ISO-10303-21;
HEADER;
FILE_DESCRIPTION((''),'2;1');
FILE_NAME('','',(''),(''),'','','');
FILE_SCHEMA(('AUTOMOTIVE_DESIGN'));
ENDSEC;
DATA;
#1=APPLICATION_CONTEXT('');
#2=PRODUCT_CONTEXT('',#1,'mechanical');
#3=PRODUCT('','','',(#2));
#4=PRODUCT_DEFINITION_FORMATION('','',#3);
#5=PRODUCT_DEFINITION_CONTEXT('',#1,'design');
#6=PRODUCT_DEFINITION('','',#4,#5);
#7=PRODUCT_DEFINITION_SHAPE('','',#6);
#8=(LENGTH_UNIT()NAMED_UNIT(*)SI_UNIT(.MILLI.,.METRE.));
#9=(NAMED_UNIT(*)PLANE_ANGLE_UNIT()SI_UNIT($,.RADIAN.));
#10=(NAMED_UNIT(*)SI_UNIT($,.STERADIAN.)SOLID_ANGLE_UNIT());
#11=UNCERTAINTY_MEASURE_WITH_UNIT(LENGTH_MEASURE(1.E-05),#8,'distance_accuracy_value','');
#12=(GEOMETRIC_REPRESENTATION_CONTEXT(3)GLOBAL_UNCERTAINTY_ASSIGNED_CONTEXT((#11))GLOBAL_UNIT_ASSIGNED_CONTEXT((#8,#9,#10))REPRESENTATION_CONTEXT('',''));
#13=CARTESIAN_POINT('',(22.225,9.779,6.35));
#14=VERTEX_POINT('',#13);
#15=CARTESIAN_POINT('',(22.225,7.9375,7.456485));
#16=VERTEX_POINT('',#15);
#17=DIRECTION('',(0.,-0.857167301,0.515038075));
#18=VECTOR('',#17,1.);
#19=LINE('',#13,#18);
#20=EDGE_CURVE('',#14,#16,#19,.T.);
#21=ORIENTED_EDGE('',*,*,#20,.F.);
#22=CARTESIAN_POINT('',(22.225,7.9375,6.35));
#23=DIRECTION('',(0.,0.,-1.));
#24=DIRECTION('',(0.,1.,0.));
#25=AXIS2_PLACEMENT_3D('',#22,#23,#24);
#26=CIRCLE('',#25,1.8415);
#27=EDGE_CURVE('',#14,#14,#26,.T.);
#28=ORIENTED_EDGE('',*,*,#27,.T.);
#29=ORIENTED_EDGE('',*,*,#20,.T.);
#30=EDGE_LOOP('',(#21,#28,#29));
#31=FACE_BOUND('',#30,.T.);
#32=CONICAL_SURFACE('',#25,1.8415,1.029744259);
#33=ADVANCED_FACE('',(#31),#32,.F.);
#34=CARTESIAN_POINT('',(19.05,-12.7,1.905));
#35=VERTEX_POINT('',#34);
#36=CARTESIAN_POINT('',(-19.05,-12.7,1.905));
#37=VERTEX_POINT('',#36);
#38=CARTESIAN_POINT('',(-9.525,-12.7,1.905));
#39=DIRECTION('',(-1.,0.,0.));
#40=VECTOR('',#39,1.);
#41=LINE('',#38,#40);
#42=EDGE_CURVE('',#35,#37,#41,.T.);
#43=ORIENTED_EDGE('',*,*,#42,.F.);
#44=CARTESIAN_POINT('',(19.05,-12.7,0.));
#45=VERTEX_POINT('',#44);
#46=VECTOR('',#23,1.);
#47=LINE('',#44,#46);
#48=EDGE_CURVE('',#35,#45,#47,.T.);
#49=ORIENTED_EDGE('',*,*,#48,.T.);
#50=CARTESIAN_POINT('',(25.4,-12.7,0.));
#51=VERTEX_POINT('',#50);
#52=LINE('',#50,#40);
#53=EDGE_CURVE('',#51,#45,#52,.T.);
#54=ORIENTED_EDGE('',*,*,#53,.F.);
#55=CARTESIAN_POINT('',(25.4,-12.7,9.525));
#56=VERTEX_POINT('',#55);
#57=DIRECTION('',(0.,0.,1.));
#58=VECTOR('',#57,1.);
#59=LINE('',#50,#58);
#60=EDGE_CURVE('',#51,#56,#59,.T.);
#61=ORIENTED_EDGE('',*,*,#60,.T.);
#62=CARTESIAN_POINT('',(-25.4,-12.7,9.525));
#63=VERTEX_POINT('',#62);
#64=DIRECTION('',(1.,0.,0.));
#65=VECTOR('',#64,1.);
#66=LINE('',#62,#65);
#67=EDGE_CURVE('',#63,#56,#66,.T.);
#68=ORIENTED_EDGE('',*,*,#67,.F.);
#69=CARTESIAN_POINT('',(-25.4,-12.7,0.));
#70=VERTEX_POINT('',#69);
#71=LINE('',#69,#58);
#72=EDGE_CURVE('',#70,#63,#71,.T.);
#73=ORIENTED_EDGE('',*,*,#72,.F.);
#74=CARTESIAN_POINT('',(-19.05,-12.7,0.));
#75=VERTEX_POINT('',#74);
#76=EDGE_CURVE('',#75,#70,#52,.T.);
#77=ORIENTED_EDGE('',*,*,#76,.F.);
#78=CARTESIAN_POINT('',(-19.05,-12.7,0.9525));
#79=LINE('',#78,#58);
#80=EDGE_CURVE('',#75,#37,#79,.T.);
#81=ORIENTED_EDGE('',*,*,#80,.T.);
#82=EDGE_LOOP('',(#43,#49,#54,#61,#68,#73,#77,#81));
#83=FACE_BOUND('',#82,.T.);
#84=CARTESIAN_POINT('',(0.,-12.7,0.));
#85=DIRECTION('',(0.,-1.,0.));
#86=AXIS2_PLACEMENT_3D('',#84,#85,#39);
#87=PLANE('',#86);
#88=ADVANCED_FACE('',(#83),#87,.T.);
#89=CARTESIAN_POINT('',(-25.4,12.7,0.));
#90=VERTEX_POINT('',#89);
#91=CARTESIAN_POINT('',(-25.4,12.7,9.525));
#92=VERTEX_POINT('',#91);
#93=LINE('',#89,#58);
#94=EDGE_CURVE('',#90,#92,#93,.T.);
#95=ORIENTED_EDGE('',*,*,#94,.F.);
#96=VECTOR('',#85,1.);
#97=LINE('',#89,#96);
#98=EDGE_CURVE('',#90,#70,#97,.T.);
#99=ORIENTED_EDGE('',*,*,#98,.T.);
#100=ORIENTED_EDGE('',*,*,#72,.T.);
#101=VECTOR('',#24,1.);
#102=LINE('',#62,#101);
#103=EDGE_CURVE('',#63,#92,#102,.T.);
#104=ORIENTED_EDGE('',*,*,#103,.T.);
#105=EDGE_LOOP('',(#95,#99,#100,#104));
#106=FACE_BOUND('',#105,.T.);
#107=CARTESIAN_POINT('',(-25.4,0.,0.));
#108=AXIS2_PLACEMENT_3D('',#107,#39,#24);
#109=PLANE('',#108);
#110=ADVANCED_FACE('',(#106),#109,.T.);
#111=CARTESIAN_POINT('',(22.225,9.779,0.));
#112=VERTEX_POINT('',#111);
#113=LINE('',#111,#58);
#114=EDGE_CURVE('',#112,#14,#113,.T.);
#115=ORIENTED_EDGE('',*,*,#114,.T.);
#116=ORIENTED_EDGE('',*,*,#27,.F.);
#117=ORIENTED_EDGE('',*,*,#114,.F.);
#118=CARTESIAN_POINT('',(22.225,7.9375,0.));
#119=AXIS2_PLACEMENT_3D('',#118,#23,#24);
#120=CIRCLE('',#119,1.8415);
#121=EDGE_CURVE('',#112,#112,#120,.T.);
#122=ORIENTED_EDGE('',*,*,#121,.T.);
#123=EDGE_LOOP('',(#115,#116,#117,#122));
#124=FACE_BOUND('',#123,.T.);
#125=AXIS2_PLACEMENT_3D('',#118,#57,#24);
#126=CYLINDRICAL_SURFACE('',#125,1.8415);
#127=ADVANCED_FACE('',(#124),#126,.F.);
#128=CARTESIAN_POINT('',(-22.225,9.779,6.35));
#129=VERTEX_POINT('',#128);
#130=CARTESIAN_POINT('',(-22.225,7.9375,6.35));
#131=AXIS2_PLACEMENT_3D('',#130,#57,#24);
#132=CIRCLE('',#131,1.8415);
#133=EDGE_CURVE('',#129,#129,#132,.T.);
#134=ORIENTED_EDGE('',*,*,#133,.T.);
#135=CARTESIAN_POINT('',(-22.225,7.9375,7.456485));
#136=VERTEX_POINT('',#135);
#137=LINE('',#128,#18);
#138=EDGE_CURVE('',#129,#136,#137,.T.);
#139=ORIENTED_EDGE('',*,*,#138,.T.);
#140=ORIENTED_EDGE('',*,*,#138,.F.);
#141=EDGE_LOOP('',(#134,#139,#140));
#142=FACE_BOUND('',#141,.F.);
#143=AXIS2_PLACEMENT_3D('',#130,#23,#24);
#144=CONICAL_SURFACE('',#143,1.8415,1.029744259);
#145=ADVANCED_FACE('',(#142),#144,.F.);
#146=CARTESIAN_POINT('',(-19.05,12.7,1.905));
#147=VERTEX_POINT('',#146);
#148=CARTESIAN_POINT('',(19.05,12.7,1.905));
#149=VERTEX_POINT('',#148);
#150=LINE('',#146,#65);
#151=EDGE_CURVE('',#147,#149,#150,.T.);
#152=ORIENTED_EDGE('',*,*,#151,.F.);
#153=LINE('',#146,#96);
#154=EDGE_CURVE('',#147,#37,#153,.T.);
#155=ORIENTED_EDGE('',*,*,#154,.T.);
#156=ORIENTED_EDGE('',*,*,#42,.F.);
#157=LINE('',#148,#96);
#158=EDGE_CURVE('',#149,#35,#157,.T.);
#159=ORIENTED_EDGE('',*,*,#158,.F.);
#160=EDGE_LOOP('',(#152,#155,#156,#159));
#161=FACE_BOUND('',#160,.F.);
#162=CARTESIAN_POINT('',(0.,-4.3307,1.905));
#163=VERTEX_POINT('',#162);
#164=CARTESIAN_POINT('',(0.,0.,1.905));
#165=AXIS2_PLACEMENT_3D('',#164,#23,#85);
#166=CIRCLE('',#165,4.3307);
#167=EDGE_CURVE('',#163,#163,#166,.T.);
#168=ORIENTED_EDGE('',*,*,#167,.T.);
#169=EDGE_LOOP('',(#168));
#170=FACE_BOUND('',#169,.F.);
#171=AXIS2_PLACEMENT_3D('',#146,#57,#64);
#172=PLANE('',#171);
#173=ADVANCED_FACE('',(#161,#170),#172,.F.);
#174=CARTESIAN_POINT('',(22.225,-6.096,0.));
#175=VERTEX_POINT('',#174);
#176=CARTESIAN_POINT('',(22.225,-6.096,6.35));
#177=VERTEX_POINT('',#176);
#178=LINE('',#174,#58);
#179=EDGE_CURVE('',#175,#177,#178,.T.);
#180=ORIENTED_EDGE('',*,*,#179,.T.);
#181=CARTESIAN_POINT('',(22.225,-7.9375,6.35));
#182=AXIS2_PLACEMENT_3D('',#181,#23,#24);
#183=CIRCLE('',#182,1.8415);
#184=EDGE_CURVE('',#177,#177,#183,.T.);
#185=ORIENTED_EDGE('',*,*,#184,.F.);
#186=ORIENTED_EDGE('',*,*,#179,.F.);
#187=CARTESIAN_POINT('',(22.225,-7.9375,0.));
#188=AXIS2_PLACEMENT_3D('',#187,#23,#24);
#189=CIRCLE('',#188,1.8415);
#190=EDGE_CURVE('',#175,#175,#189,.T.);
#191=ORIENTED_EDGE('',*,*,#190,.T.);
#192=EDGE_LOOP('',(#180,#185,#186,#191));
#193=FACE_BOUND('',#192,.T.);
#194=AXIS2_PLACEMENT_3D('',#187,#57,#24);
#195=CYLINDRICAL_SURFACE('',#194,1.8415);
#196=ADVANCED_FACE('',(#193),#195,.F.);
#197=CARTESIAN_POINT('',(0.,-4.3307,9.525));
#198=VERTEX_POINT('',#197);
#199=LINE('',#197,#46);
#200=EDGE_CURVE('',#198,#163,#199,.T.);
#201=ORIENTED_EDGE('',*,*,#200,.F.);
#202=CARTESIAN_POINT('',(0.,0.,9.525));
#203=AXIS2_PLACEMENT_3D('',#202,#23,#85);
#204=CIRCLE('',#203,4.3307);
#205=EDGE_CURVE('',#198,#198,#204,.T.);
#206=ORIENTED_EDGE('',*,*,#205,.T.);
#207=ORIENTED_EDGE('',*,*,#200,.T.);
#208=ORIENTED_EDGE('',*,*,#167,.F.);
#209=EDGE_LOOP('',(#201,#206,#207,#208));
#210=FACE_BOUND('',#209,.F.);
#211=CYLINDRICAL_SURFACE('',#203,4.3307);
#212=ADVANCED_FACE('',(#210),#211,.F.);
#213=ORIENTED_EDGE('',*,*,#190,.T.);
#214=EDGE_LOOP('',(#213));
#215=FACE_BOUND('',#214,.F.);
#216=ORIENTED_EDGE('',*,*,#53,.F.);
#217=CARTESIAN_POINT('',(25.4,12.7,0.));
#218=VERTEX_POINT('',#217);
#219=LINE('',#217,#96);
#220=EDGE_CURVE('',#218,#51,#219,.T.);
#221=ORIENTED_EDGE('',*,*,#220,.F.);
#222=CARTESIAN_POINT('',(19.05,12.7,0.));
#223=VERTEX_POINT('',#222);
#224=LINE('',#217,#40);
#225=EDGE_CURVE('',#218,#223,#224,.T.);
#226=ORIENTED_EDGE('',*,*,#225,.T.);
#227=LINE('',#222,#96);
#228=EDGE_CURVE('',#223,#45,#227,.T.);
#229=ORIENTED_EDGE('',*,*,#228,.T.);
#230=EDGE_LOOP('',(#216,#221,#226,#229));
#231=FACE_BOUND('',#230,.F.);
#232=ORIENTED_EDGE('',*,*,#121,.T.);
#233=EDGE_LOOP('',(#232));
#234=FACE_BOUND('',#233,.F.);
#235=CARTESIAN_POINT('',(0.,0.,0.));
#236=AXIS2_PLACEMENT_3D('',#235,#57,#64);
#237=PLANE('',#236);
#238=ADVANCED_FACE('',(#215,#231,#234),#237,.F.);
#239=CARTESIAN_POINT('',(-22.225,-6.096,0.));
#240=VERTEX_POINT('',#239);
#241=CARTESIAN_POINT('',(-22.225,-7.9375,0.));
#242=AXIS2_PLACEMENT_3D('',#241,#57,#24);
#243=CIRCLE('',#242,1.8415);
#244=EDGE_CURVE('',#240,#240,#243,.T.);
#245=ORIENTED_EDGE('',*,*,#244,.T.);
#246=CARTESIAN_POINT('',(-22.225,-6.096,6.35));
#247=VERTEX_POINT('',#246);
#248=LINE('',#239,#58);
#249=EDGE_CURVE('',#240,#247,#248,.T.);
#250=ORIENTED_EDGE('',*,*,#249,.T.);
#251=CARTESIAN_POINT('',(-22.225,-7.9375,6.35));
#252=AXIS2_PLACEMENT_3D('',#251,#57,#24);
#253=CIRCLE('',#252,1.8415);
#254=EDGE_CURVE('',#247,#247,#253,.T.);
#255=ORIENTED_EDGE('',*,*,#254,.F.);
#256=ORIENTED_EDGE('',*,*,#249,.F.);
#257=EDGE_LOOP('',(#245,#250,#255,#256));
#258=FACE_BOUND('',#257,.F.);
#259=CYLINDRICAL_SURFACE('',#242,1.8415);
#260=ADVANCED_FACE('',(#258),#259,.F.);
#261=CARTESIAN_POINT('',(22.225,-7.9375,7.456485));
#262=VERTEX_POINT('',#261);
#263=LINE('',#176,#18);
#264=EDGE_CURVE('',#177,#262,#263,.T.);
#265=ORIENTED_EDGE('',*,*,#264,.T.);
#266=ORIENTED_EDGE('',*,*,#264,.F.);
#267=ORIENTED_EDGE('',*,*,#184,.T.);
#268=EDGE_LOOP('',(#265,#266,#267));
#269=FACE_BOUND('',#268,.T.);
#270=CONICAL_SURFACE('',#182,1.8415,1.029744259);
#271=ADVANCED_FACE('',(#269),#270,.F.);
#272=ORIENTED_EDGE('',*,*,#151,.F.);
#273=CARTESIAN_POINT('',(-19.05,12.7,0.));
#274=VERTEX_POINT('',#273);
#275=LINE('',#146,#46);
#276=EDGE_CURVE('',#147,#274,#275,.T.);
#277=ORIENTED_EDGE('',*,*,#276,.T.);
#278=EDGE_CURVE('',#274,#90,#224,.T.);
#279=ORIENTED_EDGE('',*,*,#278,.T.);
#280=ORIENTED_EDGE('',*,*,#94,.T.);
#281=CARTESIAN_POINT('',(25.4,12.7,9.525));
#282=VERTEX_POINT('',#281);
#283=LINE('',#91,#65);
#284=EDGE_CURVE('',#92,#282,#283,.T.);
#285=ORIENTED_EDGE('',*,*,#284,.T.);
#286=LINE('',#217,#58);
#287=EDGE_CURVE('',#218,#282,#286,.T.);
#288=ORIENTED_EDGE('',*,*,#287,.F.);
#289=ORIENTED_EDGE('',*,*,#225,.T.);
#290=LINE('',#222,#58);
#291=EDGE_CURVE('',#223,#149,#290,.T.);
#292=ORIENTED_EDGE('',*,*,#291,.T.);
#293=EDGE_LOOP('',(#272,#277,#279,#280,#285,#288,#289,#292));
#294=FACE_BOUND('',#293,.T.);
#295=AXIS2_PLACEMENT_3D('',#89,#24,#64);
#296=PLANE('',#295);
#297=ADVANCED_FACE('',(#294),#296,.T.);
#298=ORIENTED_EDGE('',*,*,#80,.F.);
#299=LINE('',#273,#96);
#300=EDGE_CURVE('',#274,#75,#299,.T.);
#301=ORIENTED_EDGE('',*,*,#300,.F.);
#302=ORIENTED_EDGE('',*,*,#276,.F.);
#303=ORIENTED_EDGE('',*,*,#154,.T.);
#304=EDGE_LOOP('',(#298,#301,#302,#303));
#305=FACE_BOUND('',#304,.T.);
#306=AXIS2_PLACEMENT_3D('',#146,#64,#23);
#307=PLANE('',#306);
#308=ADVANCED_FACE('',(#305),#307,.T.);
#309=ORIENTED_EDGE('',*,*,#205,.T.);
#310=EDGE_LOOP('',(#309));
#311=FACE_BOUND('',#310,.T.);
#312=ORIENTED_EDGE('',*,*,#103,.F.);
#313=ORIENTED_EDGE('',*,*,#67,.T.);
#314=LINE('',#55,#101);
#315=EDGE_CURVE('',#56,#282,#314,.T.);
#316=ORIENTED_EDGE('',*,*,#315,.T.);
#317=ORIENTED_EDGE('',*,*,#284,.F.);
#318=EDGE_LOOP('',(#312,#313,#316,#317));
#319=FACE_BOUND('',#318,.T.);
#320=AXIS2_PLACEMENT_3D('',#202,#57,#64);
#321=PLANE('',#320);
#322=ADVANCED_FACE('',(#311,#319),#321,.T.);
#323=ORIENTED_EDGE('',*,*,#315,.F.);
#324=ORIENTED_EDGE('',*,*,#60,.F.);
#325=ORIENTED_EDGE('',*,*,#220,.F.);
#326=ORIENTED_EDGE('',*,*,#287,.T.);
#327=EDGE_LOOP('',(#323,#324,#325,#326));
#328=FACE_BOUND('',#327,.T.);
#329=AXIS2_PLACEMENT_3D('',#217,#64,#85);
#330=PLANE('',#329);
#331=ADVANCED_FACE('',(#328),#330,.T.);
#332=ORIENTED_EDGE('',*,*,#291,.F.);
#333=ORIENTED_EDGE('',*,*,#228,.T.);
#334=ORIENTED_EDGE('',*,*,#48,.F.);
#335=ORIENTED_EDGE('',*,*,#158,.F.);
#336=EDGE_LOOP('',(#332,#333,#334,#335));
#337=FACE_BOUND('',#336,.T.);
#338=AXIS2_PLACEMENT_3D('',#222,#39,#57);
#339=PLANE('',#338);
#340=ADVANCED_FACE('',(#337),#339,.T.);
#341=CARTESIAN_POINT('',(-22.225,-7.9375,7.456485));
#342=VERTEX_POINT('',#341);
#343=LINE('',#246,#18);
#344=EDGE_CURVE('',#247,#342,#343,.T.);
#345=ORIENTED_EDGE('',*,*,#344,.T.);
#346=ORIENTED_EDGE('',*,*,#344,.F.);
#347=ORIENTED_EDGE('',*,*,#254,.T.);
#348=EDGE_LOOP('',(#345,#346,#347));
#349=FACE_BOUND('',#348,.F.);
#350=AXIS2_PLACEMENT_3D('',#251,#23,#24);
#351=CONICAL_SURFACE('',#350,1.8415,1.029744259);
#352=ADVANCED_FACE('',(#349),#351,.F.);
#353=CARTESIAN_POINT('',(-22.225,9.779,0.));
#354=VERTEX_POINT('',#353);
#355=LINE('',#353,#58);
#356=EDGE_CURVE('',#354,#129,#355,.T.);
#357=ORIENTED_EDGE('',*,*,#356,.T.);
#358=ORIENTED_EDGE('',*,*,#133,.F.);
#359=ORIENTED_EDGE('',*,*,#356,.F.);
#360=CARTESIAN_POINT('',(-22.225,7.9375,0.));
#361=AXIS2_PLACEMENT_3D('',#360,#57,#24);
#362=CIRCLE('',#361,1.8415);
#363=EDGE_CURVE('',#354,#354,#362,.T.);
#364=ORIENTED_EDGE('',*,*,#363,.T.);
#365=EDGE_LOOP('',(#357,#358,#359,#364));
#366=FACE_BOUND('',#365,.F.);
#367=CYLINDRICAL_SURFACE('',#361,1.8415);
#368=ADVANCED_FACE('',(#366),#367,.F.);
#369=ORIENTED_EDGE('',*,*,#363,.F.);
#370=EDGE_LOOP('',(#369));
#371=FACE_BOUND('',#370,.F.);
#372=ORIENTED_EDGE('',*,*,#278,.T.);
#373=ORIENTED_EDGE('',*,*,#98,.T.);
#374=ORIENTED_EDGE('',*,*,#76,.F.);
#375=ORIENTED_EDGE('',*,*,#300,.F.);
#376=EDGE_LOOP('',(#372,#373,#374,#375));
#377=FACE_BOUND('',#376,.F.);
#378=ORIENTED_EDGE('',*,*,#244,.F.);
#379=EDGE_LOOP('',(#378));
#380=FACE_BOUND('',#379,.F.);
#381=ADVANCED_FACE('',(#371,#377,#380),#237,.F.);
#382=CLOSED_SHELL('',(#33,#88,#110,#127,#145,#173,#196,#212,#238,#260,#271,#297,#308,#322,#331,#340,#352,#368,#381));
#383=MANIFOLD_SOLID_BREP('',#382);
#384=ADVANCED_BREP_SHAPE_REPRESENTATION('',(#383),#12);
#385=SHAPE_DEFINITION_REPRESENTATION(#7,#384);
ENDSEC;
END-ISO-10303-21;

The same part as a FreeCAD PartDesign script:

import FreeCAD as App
import Part
import Sketcher
from FreeCAD import Vector
Q = App.Units.Quantity


def add_polygon(sketch, points):
    """Adds a closed chain of lines whose ends are joined by coincident constraints."""
    first, n = sketch.GeometryCount, len(points)
    for a, b in zip(points, points[1:] + points[:1]):
        sketch.addGeometry(Part.LineSegment(App.Vector(*a, 0), App.Vector(*b, 0)), False)
    for i in range(n):
        sketch.addConstraint(Sketcher.Constraint("Coincident", first + i, 2, first + (i + 1) % n, 1))

doc = App.newDocument("Part")
params = doc.addObject("Spreadsheet::Sheet", "Params")
for row, (alias, value) in enumerate([
    ("sketch1_width", "2 in"),
    ("sketch1_height", "1 in"),
    ("pad1_length", "0.375 in"),
    ("sketch2_height", "0.075 in"),
    ("sketch2_width", "1.5 in"),
    ("sketch3_diameter", "0.145 in"),
    ("hole_diameter", "0.145 in"),
    ("hole_depth", "0.25 in"),
    ("sketch4_diameter", "0.341 in"),
    ("hole2_diameter", "0.341 in"),
], start=1):
    params.set(f"A{row}", alias)
    params.set(f"B{row}", "=" + value)
    params.setAlias(f"B{row}", alias)

body = doc.addObject("PartDesign::Body", "Body")

sketch1 = doc.addObject("Sketcher::SketchObject", "Sketch")
body.addObject(sketch1)
sketch1.AttachmentSupport = (doc.XY_Plane, [""])
sketch1.MapMode = "FlatFace"
add_polygon(sketch1, [(-25, 13), (-25, -13), (25, -13), (25, 13)])
sketch1.addConstraint(Sketcher.Constraint("Vertical", 0))
sketch1.addConstraint(Sketcher.Constraint("Horizontal", 1))
sketch1.addConstraint(Sketcher.Constraint("Vertical", 2))
sketch1.addConstraint(Sketcher.Constraint("Horizontal", 3))
sketch1.addConstraint(Sketcher.Constraint("Symmetric", 0, 2, 2, 2, -1, 1))
sketch1.addConstraint(Sketcher.Constraint("DistanceX", 1, 1, 1, 2, Q("2 in")))
sketch1.addConstraint(Sketcher.Constraint("DistanceY", 0, 2, 0, 1, Q("1 in")))
sketch1.setExpression("Constraints[9]", "Params.sketch1_width")
sketch1.setExpression("Constraints[10]", "Params.sketch1_height")
pad1 = doc.addObject("PartDesign::Pad", "Pad")
body.addObject(pad1)
pad1.Profile = sketch1
pad1.setExpression("Length", "Params.pad1_length")

sketch2 = doc.addObject("Sketcher::SketchObject", "Sketch001")
body.addObject(sketch2)
sketch2.AttachmentSupport = (doc.XZ_Plane, [""])
sketch2.MapMode = "FlatFace"
sketch2.AttachmentOffset = App.Placement(Vector(0, 0, -0.5 * 25.4), App.Rotation())
add_polygon(sketch2, [(19.1, 0), (-19.1, 0), (-19.1, 1.9), (19.1, 1.9)])
sketch2.addConstraint(Sketcher.Constraint("Horizontal", 0))
sketch2.addConstraint(Sketcher.Constraint("Vertical", 1))
sketch2.addConstraint(Sketcher.Constraint("Horizontal", 2))
sketch2.addConstraint(Sketcher.Constraint("Vertical", 3))
sketch2.addConstraint(Sketcher.Constraint("Symmetric", 0, 2, 3, 2, -1, 1))
sketch2.addConstraint(Sketcher.Constraint("DistanceY", 1, 1, 1, 2, Q("0.075 in")))
sketch2.addConstraint(Sketcher.Constraint("DistanceX", 0, 2, 0, 1, Q("1.5 in")))
sketch2.setExpression("Constraints[9]", "Params.sketch2_height")
sketch2.setExpression("Constraints[10]", "Params.sketch2_width")
pocket1 = doc.addObject("PartDesign::Pocket", "Pocket")
body.addObject(pocket1)
pocket1.Profile = sketch2
pocket1.Type = "ThroughAll"
pocket1.Reversed = True

sketch3 = doc.addObject("Sketcher::SketchObject", "Sketch002")
body.addObject(sketch3)
sketch3.AttachmentSupport = (doc.XY_Plane, [""])
sketch3.MapMode = "FlatFace"
sketch3.addGeometry(Part.Circle(Vector(-22.2, 7.9, 0), Vector(0, 0, 1), 1.8), False)
sketch3.addGeometry(Part.Circle(Vector(-22.2, -7.9, 0), Vector(0, 0, 1), 1.8), False)
sketch3.addConstraint(Sketcher.Constraint("Equal", 0, 1))
sketch3.addConstraint(Sketcher.Constraint("Symmetric", 0, 3, 1, 3, -1))
sketch3.addConstraint(Sketcher.Constraint("Diameter", 0, Q("0.145 in")))
sketch3.addConstraint(Sketcher.Constraint("DistanceX", 0, 3, -1, 1, Q("0.875 in")))
sketch3.addConstraint(Sketcher.Constraint("DistanceY", -1, 1, 0, 3, Q("0.3125 in")))
sketch3.setExpression("Constraints[2]", "Params.sketch3_diameter")
doc.recompute()
hole = doc.addObject("PartDesign::Hole", "Hole")
body.addObject(hole)
hole.Profile = sketch3
hole.ThreadType = "None"
hole.setExpression("Diameter", "Params.hole_diameter")
hole.DepthType = "Dimension"
hole.setExpression("Depth", "Params.hole_depth")
hole.DrillPoint = "Angled"
hole.DrillPointAngle = 118
hole.Reversed = True
doc.recompute()

mirrored = doc.addObject("PartDesign::Mirrored", "Mirrored")
body.addObject(mirrored)
mirrored.Originals = [hole]
mirrored.MirrorPlane = (doc.YZ_Plane, [""])
body.Tip = mirrored

sketch4 = doc.addObject("Sketcher::SketchObject", "Sketch003")
body.addObject(sketch4)
sketch4.AttachmentSupport = (doc.XY_Plane, [""])
sketch4.MapMode = "FlatFace"
sketch4.AttachmentOffset = App.Placement(Vector(0, 0, 0.375 * 25.4), App.Rotation())
sketch4.addGeometry(Part.Circle(Vector(0, 0, 0), Vector(0, 0, 1), 4.3), False)
sketch4.addConstraint(Sketcher.Constraint("Coincident", 0, 3, -1, 1))
sketch4.addConstraint(Sketcher.Constraint("Diameter", 0, Q("0.341 in")))
sketch4.setExpression("Constraints[1]", "Params.sketch4_diameter")
doc.recompute()
hole2 = doc.addObject("PartDesign::Hole", "Hole001")
body.addObject(hole2)
hole2.Profile = sketch4
hole2.ThreadType = "None"
hole2.setExpression("Diameter", "Params.hole2_diameter")
hole2.DepthType = "ThroughAll"

doc.recompute()
